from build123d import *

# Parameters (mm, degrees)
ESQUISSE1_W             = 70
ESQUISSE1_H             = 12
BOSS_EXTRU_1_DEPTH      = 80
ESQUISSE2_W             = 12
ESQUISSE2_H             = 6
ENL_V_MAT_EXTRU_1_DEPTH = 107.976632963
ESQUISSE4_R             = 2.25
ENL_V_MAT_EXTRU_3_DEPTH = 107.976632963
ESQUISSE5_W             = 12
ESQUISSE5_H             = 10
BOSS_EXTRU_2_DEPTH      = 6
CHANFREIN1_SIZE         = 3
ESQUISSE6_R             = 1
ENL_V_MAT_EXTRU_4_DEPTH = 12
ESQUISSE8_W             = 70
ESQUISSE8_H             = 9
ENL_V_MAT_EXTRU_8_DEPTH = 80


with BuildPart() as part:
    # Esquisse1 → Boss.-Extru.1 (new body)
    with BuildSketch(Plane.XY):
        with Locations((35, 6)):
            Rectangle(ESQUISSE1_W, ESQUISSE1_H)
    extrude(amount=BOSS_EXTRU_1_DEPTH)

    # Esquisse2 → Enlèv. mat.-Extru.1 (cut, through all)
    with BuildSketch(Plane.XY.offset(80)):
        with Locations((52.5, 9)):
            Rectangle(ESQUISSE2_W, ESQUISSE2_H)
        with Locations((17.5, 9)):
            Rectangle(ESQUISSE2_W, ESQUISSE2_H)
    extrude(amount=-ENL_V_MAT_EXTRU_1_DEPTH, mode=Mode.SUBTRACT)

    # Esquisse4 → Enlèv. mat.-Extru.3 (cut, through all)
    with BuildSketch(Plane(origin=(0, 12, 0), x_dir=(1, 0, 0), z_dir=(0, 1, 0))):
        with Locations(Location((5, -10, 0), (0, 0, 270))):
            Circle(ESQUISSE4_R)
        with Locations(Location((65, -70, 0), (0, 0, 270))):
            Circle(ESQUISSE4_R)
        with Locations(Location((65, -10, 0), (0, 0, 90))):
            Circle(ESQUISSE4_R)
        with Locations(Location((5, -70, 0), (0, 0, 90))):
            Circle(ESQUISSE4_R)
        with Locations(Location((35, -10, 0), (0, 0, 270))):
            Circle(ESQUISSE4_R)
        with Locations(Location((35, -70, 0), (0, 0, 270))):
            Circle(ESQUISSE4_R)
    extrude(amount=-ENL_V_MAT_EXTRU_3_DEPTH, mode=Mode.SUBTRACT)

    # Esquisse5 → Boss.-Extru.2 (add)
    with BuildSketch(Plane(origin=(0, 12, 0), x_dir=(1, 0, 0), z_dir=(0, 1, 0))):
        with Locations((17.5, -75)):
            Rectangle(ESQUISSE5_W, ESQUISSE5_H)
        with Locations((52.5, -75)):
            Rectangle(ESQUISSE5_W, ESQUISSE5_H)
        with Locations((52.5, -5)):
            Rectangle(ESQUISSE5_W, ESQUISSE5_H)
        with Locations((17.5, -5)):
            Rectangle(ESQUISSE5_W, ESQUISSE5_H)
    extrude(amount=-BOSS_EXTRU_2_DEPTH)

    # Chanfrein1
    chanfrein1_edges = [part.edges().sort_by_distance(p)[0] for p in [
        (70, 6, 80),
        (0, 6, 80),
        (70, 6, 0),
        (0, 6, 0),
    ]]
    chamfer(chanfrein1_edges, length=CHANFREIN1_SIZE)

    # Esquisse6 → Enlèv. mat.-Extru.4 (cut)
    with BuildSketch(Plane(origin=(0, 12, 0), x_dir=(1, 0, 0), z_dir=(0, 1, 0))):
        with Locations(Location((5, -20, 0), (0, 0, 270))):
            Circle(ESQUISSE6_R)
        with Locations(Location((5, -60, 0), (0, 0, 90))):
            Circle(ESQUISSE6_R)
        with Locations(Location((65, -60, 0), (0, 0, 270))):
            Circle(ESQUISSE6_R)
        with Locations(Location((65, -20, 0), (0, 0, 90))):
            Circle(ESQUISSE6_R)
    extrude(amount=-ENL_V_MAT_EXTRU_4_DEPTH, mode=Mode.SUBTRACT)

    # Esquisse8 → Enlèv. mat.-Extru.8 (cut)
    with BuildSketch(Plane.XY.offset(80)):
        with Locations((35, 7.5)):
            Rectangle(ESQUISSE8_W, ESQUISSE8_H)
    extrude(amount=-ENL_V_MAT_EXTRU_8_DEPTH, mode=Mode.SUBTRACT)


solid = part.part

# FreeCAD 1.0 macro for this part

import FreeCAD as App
import Part
import Sketcher
from FreeCAD import Vector
Q = App.Units.Quantity


def edges_at(feature, points):
    """Names of the edges that pass closest to the given points."""
    edges = feature.Shape.Edges
    near = lambda p: min(range(len(edges)), key=lambda i: edges[i].distToShape(Part.Vertex(*p))[0])
    return sorted({f"Edge{near(p) + 1}" for p in points})


def add_polygon(sketch, points):
    """Adds a closed chain of lines whose ends are joined by coincident constraints."""
    first, n = sketch.GeometryCount, len(points)
    for a, b in zip(points, points[1:] + points[:1]):
        sketch.addGeometry(Part.LineSegment(App.Vector(*a, 0), App.Vector(*b, 0)), False)
    for i in range(n):
        sketch.addConstraint(Sketcher.Constraint("Coincident", first + i, 2, first + (i + 1) % n, 1))

doc = App.newDocument("Part")
params = doc.addObject("Spreadsheet::Sheet", "Params")
for row, (alias, value) in enumerate([
    ("sketch1_width", "70 mm"),
    ("sketch1_height", "12 mm"),
    ("pad1_length", "80 mm"),
    ("sketch2_width", "12 mm"),
    ("sketch2_height", "6 mm"),
    ("sketch3_diameter", "4.5 mm"),
    ("sketch4_width", "12 mm"),
    ("sketch4_height", "10 mm"),
    ("pad2_length", "6 mm"),
    ("chamfer_size", "3 mm"),
    ("sketch5_diameter", "2 mm"),
    ("pocket3_length", "12 mm"),
    ("sketch6_width", "70 mm"),
    ("sketch6_height", "9 mm"),
    ("pocket4_length", "80 mm"),
], start=1):
    params.set(f"A{row}", alias)
    params.set(f"B{row}", "=" + value)
    params.setAlias(f"B{row}", alias)

body = doc.addObject("PartDesign::Body", "Body")

# Sketch on XY plane
sketch1 = body.newObject("Sketcher::SketchObject", "Sketch")
sketch1.AttachmentSupport = (doc.getObject("XY_Plane"), [""])
sketch1.MapMode = "FlatFace"
add_polygon(sketch1, [(0, 12), (0, 0), (70, 0), (70, 12)])  # lines 0-3
sketch1.addConstraint(Sketcher.Constraint("Vertical", 0))
sketch1.addConstraint(Sketcher.Constraint("Horizontal", 1))
sketch1.addConstraint(Sketcher.Constraint("Vertical", 2))
sketch1.addConstraint(Sketcher.Constraint("Horizontal", 3))
sketch1.addConstraint(Sketcher.Constraint("Coincident", 0, 2, -1, 1))
sketch1.addConstraint(Sketcher.Constraint("DistanceX", 1, 1, 1, 2, Q("70 mm")))
sketch1.addConstraint(Sketcher.Constraint("DistanceY", 0, 2, 0, 1, Q("12 mm")))
sketch1.setExpression("Constraints[9]", "Params.sketch1_width")
sketch1.setExpression("Constraints[10]", "Params.sketch1_height")
pad1 = body.newObject("PartDesign::Pad", "Pad")
pad1.Profile = sketch1
pad1.setExpression("Length", "Params.pad1_length")

# Sketch on XY plane
sketch2 = body.newObject("Sketcher::SketchObject", "Sketch001")
sketch2.AttachmentSupport = (doc.getObject("XY_Plane"), [""])
sketch2.MapMode = "FlatFace"
sketch2.AttachmentOffset = App.Placement(Vector(0, 0, 80), App.Rotation())
add_polygon(sketch2, [(46, 12), (46, 6), (58, 6), (58, 12)])  # lines 0-3
add_polygon(sketch2, [(12, 12), (12, 6), (24, 6), (24, 12)])  # lines 4-7
sketch2.addConstraint(Sketcher.Constraint("Vertical", 0))
sketch2.addConstraint(Sketcher.Constraint("Horizontal", 1))
sketch2.addConstraint(Sketcher.Constraint("Vertical", 2))
sketch2.addConstraint(Sketcher.Constraint("Horizontal", 3))
sketch2.addConstraint(Sketcher.Constraint("Vertical", 4))
sketch2.addConstraint(Sketcher.Constraint("Horizontal", 5))
sketch2.addConstraint(Sketcher.Constraint("Vertical", 6))
sketch2.addConstraint(Sketcher.Constraint("Horizontal", 7))
sketch2.addConstraint(Sketcher.Constraint("Horizontal", 1, 2, 4, 2))
sketch2.addConstraint(Sketcher.Constraint("Horizontal", 3, 2, 6, 2))
sketch2.addConstraint(Sketcher.Constraint("Equal", 3, 5))
sketch2.addConstraint(Sketcher.Constraint("DistanceX", 1, 1, 1, 2, Q("12 mm")))
sketch2.addConstraint(Sketcher.Constraint("DistanceY", 0, 2, 0, 1, Q("6 mm")))
sketch2.addConstraint(Sketcher.Constraint("DistanceY", -1, 1, 0, 2, Q("6 mm")))
sketch2.addConstraint(Sketcher.Constraint("DistanceX", 4, 2, 0, 2, Q("35 mm")))
sketch2.addConstraint(Sketcher.Constraint("DistanceX", -1, 1, 0, 2, Q("46.5 mm")))
sketch2.setExpression("Constraints[19]", "Params.sketch2_width")
sketch2.setExpression("Constraints[20]", "Params.sketch2_height")
pocket1 = body.newObject("PartDesign::Pocket", "Pocket")
pocket1.Profile = sketch2
pocket1.Type = "ThroughAll"

# Sketch on XZ plane
sketch3 = body.newObject("Sketcher::SketchObject", "Sketch002")
sketch3.AttachmentSupport = (doc.getObject("XZ_Plane"), [""])
sketch3.MapMode = "FlatFace"
sketch3.AttachmentOffset = App.Placement(Vector(0, 0, -12), App.Rotation())
sketch3.addGeometry(Part.Circle(Vector(5, 10, 0), Vector(0, 0, 1), 2.2), False)
sketch3.addGeometry(Part.Circle(Vector(65, 70, 0), Vector(0, 0, 1), 2.2), False)
sketch3.addGeometry(Part.Circle(Vector(65, 10, 0), Vector(0, 0, 1), 2.2), False)
sketch3.addGeometry(Part.Circle(Vector(5, 70, 0), Vector(0, 0, 1), 2.2), False)
sketch3.addGeometry(Part.Circle(Vector(35, 10, 0), Vector(0, 0, 1), 2.2), False)
sketch3.addGeometry(Part.Circle(Vector(35, 70, 0), Vector(0, 0, 1), 2.2), False)
sketch3.addConstraint(Sketcher.Constraint("Equal", 0, 1))
sketch3.addConstraint(Sketcher.Constraint("Equal", 1, 2))
sketch3.addConstraint(Sketcher.Constraint("Equal", 2, 3))
sketch3.addConstraint(Sketcher.Constraint("Equal", 3, 4))
sketch3.addConstraint(Sketcher.Constraint("Equal", 4, 5))
sketch3.addConstraint(Sketcher.Constraint("Horizontal", 0, 3, 2, 3))
sketch3.addConstraint(Sketcher.Constraint("Horizontal", 1, 3, 3, 3))
sketch3.addConstraint(Sketcher.Constraint("Horizontal", 2, 3, 4, 3))
sketch3.addConstraint(Sketcher.Constraint("Horizontal", 3, 3, 5, 3))
sketch3.addConstraint(Sketcher.Constraint("Vertical", 1, 3, 2, 3))
sketch3.addConstraint(Sketcher.Constraint("Vertical", 0, 3, 3, 3))
sketch3.addConstraint(Sketcher.Constraint("Vertical", 4, 3, 5, 3))
sketch3.addConstraint(Sketcher.Constraint("Diameter", 0, Q("4.5 mm")))
sketch3.addConstraint(Sketcher.Constraint("DistanceX", -1, 1, 0, 3, Q("5 mm")))
sketch3.addConstraint(Sketcher.Constraint("DistanceY", -1, 1, 0, 3, Q("10 mm")))
sketch3.addConstraint(Sketcher.Constraint("DistanceX", -1, 1, 1, 3, Q("65 mm")))
sketch3.addConstraint(Sketcher.Constraint("DistanceY", -1, 1, 1, 3, Q("70 mm")))
sketch3.addConstraint(Sketcher.Constraint("DistanceX", -1, 1, 4, 3, Q("35 mm")))
sketch3.setExpression("Constraints[12]", "Params.sketch3_diameter")
pocket2 = body.newObject("PartDesign::Pocket", "Pocket001")
pocket2.Profile = sketch3
pocket2.Type = "ThroughAll"
pocket2.Reversed = True

# Sketch on XZ plane
sketch4 = body.newObject("Sketcher::SketchObject", "Sketch003")
sketch4.AttachmentSupport = (doc.getObject("XZ_Plane"), [""])
sketch4.MapMode = "FlatFace"
sketch4.AttachmentOffset = App.Placement(Vector(0, 0, -12), App.Rotation())
add_polygon(sketch4, [(12, 70), (12, 80), (24, 80), (24, 70)])  # lines 0-3
add_polygon(sketch4, [(46, 70), (46, 80), (58, 80), (58, 70)])  # lines 4-7
add_polygon(sketch4, [(46, 0), (46, 10), (58, 10), (58, 0)])  # lines 8-11
add_polygon(sketch4, [(12, 0), (12, 10), (24, 10), (24, 0)])  # lines 12-15
sketch4.addConstraint(Sketcher.Constraint("Vertical", 0))
sketch4.addConstraint(Sketcher.Constraint("Horizontal", 1))
sketch4.addConstraint(Sketcher.Constraint("Vertical", 2))
sketch4.addConstraint(Sketcher.Constraint("Horizontal", 3))
sketch4.addConstraint(Sketcher.Constraint("Vertical", 4))
sketch4.addConstraint(Sketcher.Constraint("Horizontal", 5))
sketch4.addConstraint(Sketcher.Constraint("Vertical", 6))
sketch4.addConstraint(Sketcher.Constraint("Horizontal", 7))
sketch4.addConstraint(Sketcher.Constraint("Vertical", 8))
sketch4.addConstraint(Sketcher.Constraint("Horizontal", 9))
sketch4.addConstraint(Sketcher.Constraint("Vertical", 10))
sketch4.addConstraint(Sketcher.Constraint("Horizontal", 11))
sketch4.addConstraint(Sketcher.Constraint("Vertical", 12))
sketch4.addConstraint(Sketcher.Constraint("Horizontal", 13))
sketch4.addConstraint(Sketcher.Constraint("Vertical", 14))
sketch4.addConstraint(Sketcher.Constraint("Horizontal", 15))
sketch4.addConstraint(Sketcher.Constraint("PointOnObject", 10, 2, -1))
sketch4.addConstraint(Sketcher.Constraint("PointOnObject", 14, 2, -1))
sketch4.addConstraint(Sketcher.Constraint("Horizontal", 1, 2, 4, 2))
sketch4.addConstraint(Sketcher.Constraint("Horizontal", 3, 2, 6, 2))
sketch4.addConstraint(Sketcher.Constraint("Horizontal", 9, 2, 12, 2))
sketch4.addConstraint(Sketcher.Constraint("Vertical", 7, 2, 8, 2))
sketch4.addConstraint(Sketcher.Constraint("Vertical", 6, 2, 9, 2))
sketch4.addConstraint(Sketcher.Constraint("Vertical", 3, 2, 12, 2))
sketch4.addConstraint(Sketcher.Constraint("Vertical", 2, 2, 13, 2))
sketch4.addConstraint(Sketcher.Constraint("Equal", 3, 5))
sketch4.addConstraint(Sketcher.Constraint("Equal", 6, 8))
sketch4.addConstraint(Sketcher.Constraint("DistanceX", 1, 1, 1, 2, Q("12 mm")))
sketch4.addConstraint(Sketcher.Constraint("DistanceY", 0, 1, 0, 2, Q("10 mm")))
sketch4.addConstraint(Sketcher.Constraint("DistanceY", -1, 1, 0, 2, Q("80 mm")))
sketch4.addConstraint(Sketcher.Constraint("DistanceX", 1, 2, 4, 2, Q("23 mm")))
sketch4.addConstraint(Sketcher.Constraint("DistanceX", -1, 1, 0, 2, Q("11.5 mm")))
sketch4.setExpression("Constraints[43]", "Params.sketch4_width")
sketch4.setExpression("Constraints[44]", "Params.sketch4_height")
pad2 = body.newObject("PartDesign::Pad", "Pad001")
pad2.Profile = sketch4
pad2.setExpression("Length", "Params.pad2_length")
doc.recompute()

chamfer = body.newObject("PartDesign::Chamfer", "Chamfer")
chamfer.Base = (pad2, edges_at(pad2, [
    (70, 6, 80),
    (0, 6, 80),
    (70, 6, 0),
    (0, 6, 0),
]))
chamfer.setExpression("Size", "Params.chamfer_size")

# Sketch on XZ plane
sketch5 = body.newObject("Sketcher::SketchObject", "Sketch004")
sketch5.AttachmentSupport = (doc.getObject("XZ_Plane"), [""])
sketch5.MapMode = "FlatFace"
sketch5.AttachmentOffset = App.Placement(Vector(0, 0, -12), App.Rotation())
sketch5.addGeometry(Part.Circle(Vector(5, 20, 0), Vector(0, 0, 1), 1), False)
sketch5.addGeometry(Part.Circle(Vector(5, 60, 0), Vector(0, 0, 1), 1), False)
sketch5.addGeometry(Part.Circle(Vector(65, 60, 0), Vector(0, 0, 1), 1), False)
sketch5.addGeometry(Part.Circle(Vector(65, 20, 0), Vector(0, 0, 1), 1), False)
sketch5.addConstraint(Sketcher.Constraint("Equal", 0, 1))
sketch5.addConstraint(Sketcher.Constraint("Equal", 1, 2))
sketch5.addConstraint(Sketcher.Constraint("Equal", 2, 3))
sketch5.addConstraint(Sketcher.Constraint("Horizontal", 1, 3, 2, 3))
sketch5.addConstraint(Sketcher.Constraint("Horizontal", 0, 3, 3, 3))
sketch5.addConstraint(Sketcher.Constraint("Vertical", 0, 3, 1, 3))
sketch5.addConstraint(Sketcher.Constraint("Vertical", 2, 3, 3, 3))
sketch5.addConstraint(Sketcher.Constraint("Diameter", 0, Q("2 mm")))
sketch5.addConstraint(Sketcher.Constraint("DistanceX", -1, 1, 0, 3, Q("5 mm")))
sketch5.addConstraint(Sketcher.Constraint("DistanceY", -1, 1, 0, 3, Q("20 mm")))
sketch5.addConstraint(Sketcher.Constraint("DistanceY", -1, 1, 1, 3, Q("60 mm")))
sketch5.addConstraint(Sketcher.Constraint("DistanceX", -1, 1, 2, 3, Q("65 mm")))
sketch5.setExpression("Constraints[7]", "Params.sketch5_diameter")
pocket3 = body.newObject("PartDesign::Pocket", "Pocket002")
pocket3.Profile = sketch5
pocket3.setExpression("Length", "Params.pocket3_length")
pocket3.Reversed = True

# Sketch on XY plane
sketch6 = body.newObject("Sketcher::SketchObject", "Sketch005")
sketch6.AttachmentSupport = (doc.getObject("XY_Plane"), [""])
sketch6.MapMode = "FlatFace"
sketch6.AttachmentOffset = App.Placement(Vector(0, 0, 80), App.Rotation())
add_polygon(sketch6, [(0, 12), (0, 3), (70, 3), (70, 12)])  # lines 0-3
sketch6.addConstraint(Sketcher.Constraint("Vertical", 0))
sketch6.addConstraint(Sketcher.Constraint("Horizontal", 1))
sketch6.addConstraint(Sketcher.Constraint("Vertical", 2))
sketch6.addConstraint(Sketcher.Constraint("Horizontal", 3))
sketch6.addConstraint(Sketcher.Constraint("PointOnObject", 0, 2, -2))
sketch6.addConstraint(Sketcher.Constraint("DistanceX", 1, 1, 1, 2, Q("70 mm")))
sketch6.addConstraint(Sketcher.Constraint("DistanceY", 0, 2, 0, 1, Q("9 mm")))
sketch6.addConstraint(Sketcher.Constraint("DistanceY", -1, 1, 0, 2, Q("3 mm")))
sketch6.setExpression("Constraints[9]", "Params.sketch6_width")
sketch6.setExpression("Constraints[10]", "Params.sketch6_height")
pocket4 = body.newObject("PartDesign::Pocket", "Pocket003")
pocket4.Profile = sketch6
pocket4.setExpression("Length", "Params.pocket4_length")

doc.recompute()
